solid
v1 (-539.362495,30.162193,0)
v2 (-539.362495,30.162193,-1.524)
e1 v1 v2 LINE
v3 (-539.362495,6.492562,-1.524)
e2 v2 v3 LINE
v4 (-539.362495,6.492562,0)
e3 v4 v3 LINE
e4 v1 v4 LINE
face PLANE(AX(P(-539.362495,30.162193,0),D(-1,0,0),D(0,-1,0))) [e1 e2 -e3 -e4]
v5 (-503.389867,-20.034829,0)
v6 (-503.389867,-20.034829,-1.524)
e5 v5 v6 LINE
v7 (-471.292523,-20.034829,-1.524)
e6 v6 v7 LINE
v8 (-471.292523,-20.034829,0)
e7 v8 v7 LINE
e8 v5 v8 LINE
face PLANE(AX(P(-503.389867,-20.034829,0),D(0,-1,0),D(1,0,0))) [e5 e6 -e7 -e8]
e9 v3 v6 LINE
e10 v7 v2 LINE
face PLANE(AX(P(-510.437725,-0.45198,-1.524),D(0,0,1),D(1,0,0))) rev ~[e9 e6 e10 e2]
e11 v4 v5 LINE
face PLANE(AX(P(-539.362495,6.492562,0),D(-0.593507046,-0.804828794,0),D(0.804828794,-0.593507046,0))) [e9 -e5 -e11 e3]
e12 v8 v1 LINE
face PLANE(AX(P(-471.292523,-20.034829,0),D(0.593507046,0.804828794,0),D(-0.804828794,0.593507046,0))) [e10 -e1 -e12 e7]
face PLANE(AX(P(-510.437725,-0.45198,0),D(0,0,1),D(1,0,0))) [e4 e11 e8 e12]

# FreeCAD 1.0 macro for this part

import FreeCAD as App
import Part
import Sketcher

V = App.Vector


def add_polygon(sketch, points):
    """Adds a closed chain of lines whose ends are joined by coincident constraints."""
    first, n = sketch.GeometryCount, len(points)
    for a, b in zip(points, points[1:] + points[:1]):
        sketch.addGeometry(Part.LineSegment(App.Vector(*a, 0), App.Vector(*b, 0)), False)
    for i in range(n):
        sketch.addConstraint(Sketcher.Constraint("Coincident", first + i, 2, first + (i + 1) % n, 1))

doc = App.newDocument("Part")
params = doc.addObject("Spreadsheet::Sheet", "Params")
for row, (alias, value) in enumerate([
    ("pad1_length", "0.06 in"),
], start=1):
    params.set(f"A{row}", alias)
    params.set(f"B{row}", "=" + value)
    params.setAlias(f"B{row}", alias)

body = doc.addObject("PartDesign::Body", "Body")

# Sketch on XY plane
sketch1 = body.newObject("Sketcher::SketchObject", "Sketch")
sketch1.AttachmentSupport = (doc.getObject("XY_Plane"), [""])
sketch1.MapMode = "FlatFace"
add_polygon(sketch1, [(-539.362495, 30.162193), (-471.292523, -20.034829), (-503.389867, -20.034829), (-539.362495, 6.492562)])  # lines 0-3
sketch1.addConstraint([
    Sketcher.Constraint("Horizontal", 1),
    Sketcher.Constraint("Vertical", 3),
    Sketcher.Constraint("Parallel", 0, 2),
    Sketcher.Constraint("Distance", 2, 44.696),
    Sketcher.Constraint("DistanceY", 3, 1, 3, 2, 23.66963),
    Sketcher.Constraint("Distance", 0, 84.57696),
    Sketcher.Constraint("DistanceY", 0, 2, -1, 1, 20.034829),
    Sketcher.Constraint("DistanceX", 0, 2, -1, 1, 471.292523),
])
pad1 = body.newObject("PartDesign::Pad", "Pad")
pad1.Profile = sketch1
pad1.setExpression("Length", "Params.pad1_length")
pad1.Reversed = True

doc.recompute()
